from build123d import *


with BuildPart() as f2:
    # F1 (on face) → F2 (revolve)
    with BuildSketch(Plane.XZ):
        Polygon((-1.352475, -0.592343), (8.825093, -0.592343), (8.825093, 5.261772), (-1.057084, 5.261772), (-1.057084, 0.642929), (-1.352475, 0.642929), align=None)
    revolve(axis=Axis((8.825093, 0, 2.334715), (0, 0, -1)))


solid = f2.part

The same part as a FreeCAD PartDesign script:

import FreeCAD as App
import Part
import Sketcher
from FreeCAD import Vector

doc = App.newDocument("Part")
params = doc.addObject("Spreadsheet::Sheet", "Params")
for row, (alias, value) in enumerate([
    ("revolution_angle", "360 deg"),
], start=1):
    params.set(f"A{row}", alias)
    params.set(f"B{row}", "=" + value)
    params.setAlias(f"B{row}", alias)

body = doc.addObject("PartDesign::Body", "Body")

# Sketch on XZ plane
sketch1 = body.newObject("Sketcher::SketchObject", "Sketch")
sketch1.AttachmentSupport = (doc.getObject("XZ_Plane"), [""])
sketch1.MapMode = "FlatFace"
sketch1.addGeometry([
    Part.LineSegment(Vector(-1.35, -0.59, 0), Vector(8.83, -0.59, 0)),  # 0
    Part.LineSegment(Vector(8.83, -0.59, 0), Vector(8.83, 5.26, 0)),  # 1
    Part.LineSegment(Vector(8.83, 5.26, 0), Vector(-1.06, 5.26, 0)),  # 2
    Part.LineSegment(Vector(-1.06, 5.26, 0), Vector(-1.06, 0.64, 0)),  # 3
    Part.LineSegment(Vector(-1.06, 0.64, 0), Vector(-1.35, 0.64, 0)),  # 4
    Part.LineSegment(Vector(-1.35, 0.64, 0), Vector(-1.35, -0.59, 0)),  # 5
], False)
sketch1.addGeometry(Part.LineSegment(Vector(8.83, 5.26, 0), Vector(8.83, -0.59, 0)), True)  # axis
sketch1.addConstraint([
    Sketcher.Constraint("Coincident", 0, 2, 1, 1),
    Sketcher.Constraint("Coincident", 1, 2, 2, 1),
    Sketcher.Constraint("Coincident", 2, 2, 3, 1),
    Sketcher.Constraint("Coincident", 3, 2, 4, 1),
    Sketcher.Constraint("Coincident", 4, 2, 5, 1),
    Sketcher.Constraint("Coincident", 5, 2, 0, 1),
    Sketcher.Constraint("Horizontal", 0),
    Sketcher.Constraint("Vertical", 1),
    Sketcher.Constraint("Horizontal", 2),
    Sketcher.Constraint("Vertical", 3),
    Sketcher.Constraint("Horizontal", 4),
    Sketcher.Constraint("Vertical", 5),
    Sketcher.Constraint("Vertical", 6),
    Sketcher.Constraint("Coincident", 6, 1, 1, 2),
    Sketcher.Constraint("Horizontal", 5, 2, 6, 2),
    Sketcher.Constraint("DistanceX", 0, 1, 0, 2, 10.177568),
    Sketcher.Constraint("DistanceX", 4, 2, 4, 1, 0.295391),
    Sketcher.Constraint("DistanceY", 5, 2, 5, 1, 1.235272),
    Sketcher.Constraint("DistanceY", 1, 1, 1, 2, 5.854115),
    Sketcher.Constraint("DistanceY", -1, 1, 1, 2, 5.261772),
    Sketcher.Constraint("DistanceX", -1, 1, 0, 2, 8.825093),
])
revolution = body.newObject("PartDesign::Revolution", "Revolution")
revolution.Profile = sketch1
revolution.ReferenceAxis = (sketch1, ["Axis0"])
revolution.setExpression("Angle", "Params.revolution_angle")

doc.recompute()
